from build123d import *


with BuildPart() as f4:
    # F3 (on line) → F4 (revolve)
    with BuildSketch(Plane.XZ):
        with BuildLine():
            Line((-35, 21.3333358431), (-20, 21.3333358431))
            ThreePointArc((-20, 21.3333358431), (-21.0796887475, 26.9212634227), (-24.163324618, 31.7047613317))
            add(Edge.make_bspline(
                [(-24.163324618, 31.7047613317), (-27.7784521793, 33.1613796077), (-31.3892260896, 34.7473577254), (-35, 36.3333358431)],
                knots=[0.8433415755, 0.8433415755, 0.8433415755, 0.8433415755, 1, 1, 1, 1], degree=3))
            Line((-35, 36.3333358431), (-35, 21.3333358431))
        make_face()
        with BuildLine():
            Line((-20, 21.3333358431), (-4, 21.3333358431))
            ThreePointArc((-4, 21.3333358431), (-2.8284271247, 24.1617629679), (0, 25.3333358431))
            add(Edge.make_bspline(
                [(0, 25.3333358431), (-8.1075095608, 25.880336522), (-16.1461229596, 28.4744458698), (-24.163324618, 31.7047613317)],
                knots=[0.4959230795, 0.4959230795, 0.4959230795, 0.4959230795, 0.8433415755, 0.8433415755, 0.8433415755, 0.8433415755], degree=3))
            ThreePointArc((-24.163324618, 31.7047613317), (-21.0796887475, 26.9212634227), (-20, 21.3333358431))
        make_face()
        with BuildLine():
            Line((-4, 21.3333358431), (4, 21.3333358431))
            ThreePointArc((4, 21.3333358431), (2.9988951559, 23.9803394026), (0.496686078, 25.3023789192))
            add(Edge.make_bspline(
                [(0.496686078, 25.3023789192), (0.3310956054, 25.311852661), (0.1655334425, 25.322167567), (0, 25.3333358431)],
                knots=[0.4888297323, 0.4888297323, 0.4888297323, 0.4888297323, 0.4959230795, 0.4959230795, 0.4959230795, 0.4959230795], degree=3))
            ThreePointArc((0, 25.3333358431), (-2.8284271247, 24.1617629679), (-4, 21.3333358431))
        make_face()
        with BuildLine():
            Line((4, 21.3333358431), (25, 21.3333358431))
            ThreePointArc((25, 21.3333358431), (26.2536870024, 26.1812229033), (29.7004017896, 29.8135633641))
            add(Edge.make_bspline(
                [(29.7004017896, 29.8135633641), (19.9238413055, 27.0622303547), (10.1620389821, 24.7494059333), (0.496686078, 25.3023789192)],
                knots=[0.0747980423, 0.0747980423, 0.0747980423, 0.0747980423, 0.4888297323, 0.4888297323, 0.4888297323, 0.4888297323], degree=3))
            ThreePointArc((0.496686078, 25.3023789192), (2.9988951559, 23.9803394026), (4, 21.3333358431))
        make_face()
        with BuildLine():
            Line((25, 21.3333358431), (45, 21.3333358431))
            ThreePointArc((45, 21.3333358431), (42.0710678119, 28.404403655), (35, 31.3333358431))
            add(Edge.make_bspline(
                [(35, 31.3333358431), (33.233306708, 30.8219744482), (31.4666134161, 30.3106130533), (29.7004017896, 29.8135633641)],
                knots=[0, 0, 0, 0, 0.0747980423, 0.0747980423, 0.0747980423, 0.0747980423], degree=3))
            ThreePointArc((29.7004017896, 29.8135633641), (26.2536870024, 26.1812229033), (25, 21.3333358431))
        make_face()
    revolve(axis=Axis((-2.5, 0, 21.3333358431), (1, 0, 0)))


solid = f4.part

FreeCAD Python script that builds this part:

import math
import FreeCAD as App
import Part
import Sketcher

V = App.Vector

doc = App.newDocument("Part")
body = doc.addObject("PartDesign::Body", "Body")

# Sketch on XZ plane
sketch1 = body.newObject("Sketcher::SketchObject", "Sketch")
sketch1.AttachmentSupport = (doc.getObject("XZ_Plane"), [""])
sketch1.MapMode = "FlatFace"
sketch1.addGeometry([
    Part.LineSegment(V(-35, 21.333336, 0), V(45, 21.333336, 0)),  # 0
    Part.ArcOfCircle(Part.Circle(V(35, 21.333336, 0), V(0, 0, 1), 10), math.radians(0), math.radians(90)),  # 1
    Part.BSplineCurve([V(35, 31.333336, 0), V(33.233307, 30.821974, 0), V(31.466613, 30.310613, 0), V(29.700402, 29.813563, 0)], [4, 4], [0, 0.074798042], False, 3, [1, 1, 1, 1], False),  # 2
    Part.BSplineCurve([V(29.700402, 29.813563, 0), V(19.923841, 27.06223, 0), V(10.162039, 24.749406, 0), V(0.496686, 25.302379, 0)], [4, 4], [0.074798042, 0.488829732], False, 3, [1, 1, 1, 1], False),  # 3
    Part.BSplineCurve([V(0.496686, 25.302379, 0), V(0.331096, 25.311853, 0), V(0.165533, 25.322168, 0), V(0, 25.333336, 0)], [4, 4], [0.488829732, 0.495923079], False, 3, [1, 1, 1, 1], False),  # 4
    Part.BSplineCurve([V(0, 25.333336, 0), V(-11.763359, 26.126991, 0), V(-23.381679, 31.230163, 0), V(-35, 36.333336, 0)], [4, 4], [0.495923079, 1], False, 3, [1, 1, 1, 1], False),  # 5
    Part.LineSegment(V(-35, 36.333336, 0), V(-35, 21.333336, 0)),  # 6
], False)
sketch1.addGeometry(Part.LineSegment(V(-35, 21.333336, 0), V(45, 21.333336, 0)), True)  # axis
sketch1.addConstraint([
    Sketcher.Constraint("Block", 2),
    Sketcher.Constraint("Block", 3),
    Sketcher.Constraint("Block", 4),
    Sketcher.Constraint("Block", 5),
    Sketcher.Constraint("Coincident", 0, 2, 1, 1),
    Sketcher.Constraint("Coincident", 1, 2, 2, 1),
    Sketcher.Constraint("Coincident", 5, 2, 6, 1),
    Sketcher.Constraint("Coincident", 6, 2, 0, 1),
    Sketcher.Constraint("Horizontal", 0),
    Sketcher.Constraint("Vertical", 6),
    Sketcher.Constraint("Horizontal", 7),
    Sketcher.Constraint("Coincident", 7, 1, 6, 2),
    Sketcher.Constraint("Horizontal", 1, 3, 0, 2),
    Sketcher.Constraint("Equal", 0, 7),
    Sketcher.Constraint("Radius", 1, 10.0),
    Sketcher.Constraint("DistanceX", 0, 1, 0, 2, 80.0),
])
revolution = body.newObject("PartDesign::Revolution", "Revolution")
revolution.Profile = sketch1
revolution.ReferenceAxis = (sketch1, ["Axis0"])
revolution.Angle = 360

doc.recompute()
